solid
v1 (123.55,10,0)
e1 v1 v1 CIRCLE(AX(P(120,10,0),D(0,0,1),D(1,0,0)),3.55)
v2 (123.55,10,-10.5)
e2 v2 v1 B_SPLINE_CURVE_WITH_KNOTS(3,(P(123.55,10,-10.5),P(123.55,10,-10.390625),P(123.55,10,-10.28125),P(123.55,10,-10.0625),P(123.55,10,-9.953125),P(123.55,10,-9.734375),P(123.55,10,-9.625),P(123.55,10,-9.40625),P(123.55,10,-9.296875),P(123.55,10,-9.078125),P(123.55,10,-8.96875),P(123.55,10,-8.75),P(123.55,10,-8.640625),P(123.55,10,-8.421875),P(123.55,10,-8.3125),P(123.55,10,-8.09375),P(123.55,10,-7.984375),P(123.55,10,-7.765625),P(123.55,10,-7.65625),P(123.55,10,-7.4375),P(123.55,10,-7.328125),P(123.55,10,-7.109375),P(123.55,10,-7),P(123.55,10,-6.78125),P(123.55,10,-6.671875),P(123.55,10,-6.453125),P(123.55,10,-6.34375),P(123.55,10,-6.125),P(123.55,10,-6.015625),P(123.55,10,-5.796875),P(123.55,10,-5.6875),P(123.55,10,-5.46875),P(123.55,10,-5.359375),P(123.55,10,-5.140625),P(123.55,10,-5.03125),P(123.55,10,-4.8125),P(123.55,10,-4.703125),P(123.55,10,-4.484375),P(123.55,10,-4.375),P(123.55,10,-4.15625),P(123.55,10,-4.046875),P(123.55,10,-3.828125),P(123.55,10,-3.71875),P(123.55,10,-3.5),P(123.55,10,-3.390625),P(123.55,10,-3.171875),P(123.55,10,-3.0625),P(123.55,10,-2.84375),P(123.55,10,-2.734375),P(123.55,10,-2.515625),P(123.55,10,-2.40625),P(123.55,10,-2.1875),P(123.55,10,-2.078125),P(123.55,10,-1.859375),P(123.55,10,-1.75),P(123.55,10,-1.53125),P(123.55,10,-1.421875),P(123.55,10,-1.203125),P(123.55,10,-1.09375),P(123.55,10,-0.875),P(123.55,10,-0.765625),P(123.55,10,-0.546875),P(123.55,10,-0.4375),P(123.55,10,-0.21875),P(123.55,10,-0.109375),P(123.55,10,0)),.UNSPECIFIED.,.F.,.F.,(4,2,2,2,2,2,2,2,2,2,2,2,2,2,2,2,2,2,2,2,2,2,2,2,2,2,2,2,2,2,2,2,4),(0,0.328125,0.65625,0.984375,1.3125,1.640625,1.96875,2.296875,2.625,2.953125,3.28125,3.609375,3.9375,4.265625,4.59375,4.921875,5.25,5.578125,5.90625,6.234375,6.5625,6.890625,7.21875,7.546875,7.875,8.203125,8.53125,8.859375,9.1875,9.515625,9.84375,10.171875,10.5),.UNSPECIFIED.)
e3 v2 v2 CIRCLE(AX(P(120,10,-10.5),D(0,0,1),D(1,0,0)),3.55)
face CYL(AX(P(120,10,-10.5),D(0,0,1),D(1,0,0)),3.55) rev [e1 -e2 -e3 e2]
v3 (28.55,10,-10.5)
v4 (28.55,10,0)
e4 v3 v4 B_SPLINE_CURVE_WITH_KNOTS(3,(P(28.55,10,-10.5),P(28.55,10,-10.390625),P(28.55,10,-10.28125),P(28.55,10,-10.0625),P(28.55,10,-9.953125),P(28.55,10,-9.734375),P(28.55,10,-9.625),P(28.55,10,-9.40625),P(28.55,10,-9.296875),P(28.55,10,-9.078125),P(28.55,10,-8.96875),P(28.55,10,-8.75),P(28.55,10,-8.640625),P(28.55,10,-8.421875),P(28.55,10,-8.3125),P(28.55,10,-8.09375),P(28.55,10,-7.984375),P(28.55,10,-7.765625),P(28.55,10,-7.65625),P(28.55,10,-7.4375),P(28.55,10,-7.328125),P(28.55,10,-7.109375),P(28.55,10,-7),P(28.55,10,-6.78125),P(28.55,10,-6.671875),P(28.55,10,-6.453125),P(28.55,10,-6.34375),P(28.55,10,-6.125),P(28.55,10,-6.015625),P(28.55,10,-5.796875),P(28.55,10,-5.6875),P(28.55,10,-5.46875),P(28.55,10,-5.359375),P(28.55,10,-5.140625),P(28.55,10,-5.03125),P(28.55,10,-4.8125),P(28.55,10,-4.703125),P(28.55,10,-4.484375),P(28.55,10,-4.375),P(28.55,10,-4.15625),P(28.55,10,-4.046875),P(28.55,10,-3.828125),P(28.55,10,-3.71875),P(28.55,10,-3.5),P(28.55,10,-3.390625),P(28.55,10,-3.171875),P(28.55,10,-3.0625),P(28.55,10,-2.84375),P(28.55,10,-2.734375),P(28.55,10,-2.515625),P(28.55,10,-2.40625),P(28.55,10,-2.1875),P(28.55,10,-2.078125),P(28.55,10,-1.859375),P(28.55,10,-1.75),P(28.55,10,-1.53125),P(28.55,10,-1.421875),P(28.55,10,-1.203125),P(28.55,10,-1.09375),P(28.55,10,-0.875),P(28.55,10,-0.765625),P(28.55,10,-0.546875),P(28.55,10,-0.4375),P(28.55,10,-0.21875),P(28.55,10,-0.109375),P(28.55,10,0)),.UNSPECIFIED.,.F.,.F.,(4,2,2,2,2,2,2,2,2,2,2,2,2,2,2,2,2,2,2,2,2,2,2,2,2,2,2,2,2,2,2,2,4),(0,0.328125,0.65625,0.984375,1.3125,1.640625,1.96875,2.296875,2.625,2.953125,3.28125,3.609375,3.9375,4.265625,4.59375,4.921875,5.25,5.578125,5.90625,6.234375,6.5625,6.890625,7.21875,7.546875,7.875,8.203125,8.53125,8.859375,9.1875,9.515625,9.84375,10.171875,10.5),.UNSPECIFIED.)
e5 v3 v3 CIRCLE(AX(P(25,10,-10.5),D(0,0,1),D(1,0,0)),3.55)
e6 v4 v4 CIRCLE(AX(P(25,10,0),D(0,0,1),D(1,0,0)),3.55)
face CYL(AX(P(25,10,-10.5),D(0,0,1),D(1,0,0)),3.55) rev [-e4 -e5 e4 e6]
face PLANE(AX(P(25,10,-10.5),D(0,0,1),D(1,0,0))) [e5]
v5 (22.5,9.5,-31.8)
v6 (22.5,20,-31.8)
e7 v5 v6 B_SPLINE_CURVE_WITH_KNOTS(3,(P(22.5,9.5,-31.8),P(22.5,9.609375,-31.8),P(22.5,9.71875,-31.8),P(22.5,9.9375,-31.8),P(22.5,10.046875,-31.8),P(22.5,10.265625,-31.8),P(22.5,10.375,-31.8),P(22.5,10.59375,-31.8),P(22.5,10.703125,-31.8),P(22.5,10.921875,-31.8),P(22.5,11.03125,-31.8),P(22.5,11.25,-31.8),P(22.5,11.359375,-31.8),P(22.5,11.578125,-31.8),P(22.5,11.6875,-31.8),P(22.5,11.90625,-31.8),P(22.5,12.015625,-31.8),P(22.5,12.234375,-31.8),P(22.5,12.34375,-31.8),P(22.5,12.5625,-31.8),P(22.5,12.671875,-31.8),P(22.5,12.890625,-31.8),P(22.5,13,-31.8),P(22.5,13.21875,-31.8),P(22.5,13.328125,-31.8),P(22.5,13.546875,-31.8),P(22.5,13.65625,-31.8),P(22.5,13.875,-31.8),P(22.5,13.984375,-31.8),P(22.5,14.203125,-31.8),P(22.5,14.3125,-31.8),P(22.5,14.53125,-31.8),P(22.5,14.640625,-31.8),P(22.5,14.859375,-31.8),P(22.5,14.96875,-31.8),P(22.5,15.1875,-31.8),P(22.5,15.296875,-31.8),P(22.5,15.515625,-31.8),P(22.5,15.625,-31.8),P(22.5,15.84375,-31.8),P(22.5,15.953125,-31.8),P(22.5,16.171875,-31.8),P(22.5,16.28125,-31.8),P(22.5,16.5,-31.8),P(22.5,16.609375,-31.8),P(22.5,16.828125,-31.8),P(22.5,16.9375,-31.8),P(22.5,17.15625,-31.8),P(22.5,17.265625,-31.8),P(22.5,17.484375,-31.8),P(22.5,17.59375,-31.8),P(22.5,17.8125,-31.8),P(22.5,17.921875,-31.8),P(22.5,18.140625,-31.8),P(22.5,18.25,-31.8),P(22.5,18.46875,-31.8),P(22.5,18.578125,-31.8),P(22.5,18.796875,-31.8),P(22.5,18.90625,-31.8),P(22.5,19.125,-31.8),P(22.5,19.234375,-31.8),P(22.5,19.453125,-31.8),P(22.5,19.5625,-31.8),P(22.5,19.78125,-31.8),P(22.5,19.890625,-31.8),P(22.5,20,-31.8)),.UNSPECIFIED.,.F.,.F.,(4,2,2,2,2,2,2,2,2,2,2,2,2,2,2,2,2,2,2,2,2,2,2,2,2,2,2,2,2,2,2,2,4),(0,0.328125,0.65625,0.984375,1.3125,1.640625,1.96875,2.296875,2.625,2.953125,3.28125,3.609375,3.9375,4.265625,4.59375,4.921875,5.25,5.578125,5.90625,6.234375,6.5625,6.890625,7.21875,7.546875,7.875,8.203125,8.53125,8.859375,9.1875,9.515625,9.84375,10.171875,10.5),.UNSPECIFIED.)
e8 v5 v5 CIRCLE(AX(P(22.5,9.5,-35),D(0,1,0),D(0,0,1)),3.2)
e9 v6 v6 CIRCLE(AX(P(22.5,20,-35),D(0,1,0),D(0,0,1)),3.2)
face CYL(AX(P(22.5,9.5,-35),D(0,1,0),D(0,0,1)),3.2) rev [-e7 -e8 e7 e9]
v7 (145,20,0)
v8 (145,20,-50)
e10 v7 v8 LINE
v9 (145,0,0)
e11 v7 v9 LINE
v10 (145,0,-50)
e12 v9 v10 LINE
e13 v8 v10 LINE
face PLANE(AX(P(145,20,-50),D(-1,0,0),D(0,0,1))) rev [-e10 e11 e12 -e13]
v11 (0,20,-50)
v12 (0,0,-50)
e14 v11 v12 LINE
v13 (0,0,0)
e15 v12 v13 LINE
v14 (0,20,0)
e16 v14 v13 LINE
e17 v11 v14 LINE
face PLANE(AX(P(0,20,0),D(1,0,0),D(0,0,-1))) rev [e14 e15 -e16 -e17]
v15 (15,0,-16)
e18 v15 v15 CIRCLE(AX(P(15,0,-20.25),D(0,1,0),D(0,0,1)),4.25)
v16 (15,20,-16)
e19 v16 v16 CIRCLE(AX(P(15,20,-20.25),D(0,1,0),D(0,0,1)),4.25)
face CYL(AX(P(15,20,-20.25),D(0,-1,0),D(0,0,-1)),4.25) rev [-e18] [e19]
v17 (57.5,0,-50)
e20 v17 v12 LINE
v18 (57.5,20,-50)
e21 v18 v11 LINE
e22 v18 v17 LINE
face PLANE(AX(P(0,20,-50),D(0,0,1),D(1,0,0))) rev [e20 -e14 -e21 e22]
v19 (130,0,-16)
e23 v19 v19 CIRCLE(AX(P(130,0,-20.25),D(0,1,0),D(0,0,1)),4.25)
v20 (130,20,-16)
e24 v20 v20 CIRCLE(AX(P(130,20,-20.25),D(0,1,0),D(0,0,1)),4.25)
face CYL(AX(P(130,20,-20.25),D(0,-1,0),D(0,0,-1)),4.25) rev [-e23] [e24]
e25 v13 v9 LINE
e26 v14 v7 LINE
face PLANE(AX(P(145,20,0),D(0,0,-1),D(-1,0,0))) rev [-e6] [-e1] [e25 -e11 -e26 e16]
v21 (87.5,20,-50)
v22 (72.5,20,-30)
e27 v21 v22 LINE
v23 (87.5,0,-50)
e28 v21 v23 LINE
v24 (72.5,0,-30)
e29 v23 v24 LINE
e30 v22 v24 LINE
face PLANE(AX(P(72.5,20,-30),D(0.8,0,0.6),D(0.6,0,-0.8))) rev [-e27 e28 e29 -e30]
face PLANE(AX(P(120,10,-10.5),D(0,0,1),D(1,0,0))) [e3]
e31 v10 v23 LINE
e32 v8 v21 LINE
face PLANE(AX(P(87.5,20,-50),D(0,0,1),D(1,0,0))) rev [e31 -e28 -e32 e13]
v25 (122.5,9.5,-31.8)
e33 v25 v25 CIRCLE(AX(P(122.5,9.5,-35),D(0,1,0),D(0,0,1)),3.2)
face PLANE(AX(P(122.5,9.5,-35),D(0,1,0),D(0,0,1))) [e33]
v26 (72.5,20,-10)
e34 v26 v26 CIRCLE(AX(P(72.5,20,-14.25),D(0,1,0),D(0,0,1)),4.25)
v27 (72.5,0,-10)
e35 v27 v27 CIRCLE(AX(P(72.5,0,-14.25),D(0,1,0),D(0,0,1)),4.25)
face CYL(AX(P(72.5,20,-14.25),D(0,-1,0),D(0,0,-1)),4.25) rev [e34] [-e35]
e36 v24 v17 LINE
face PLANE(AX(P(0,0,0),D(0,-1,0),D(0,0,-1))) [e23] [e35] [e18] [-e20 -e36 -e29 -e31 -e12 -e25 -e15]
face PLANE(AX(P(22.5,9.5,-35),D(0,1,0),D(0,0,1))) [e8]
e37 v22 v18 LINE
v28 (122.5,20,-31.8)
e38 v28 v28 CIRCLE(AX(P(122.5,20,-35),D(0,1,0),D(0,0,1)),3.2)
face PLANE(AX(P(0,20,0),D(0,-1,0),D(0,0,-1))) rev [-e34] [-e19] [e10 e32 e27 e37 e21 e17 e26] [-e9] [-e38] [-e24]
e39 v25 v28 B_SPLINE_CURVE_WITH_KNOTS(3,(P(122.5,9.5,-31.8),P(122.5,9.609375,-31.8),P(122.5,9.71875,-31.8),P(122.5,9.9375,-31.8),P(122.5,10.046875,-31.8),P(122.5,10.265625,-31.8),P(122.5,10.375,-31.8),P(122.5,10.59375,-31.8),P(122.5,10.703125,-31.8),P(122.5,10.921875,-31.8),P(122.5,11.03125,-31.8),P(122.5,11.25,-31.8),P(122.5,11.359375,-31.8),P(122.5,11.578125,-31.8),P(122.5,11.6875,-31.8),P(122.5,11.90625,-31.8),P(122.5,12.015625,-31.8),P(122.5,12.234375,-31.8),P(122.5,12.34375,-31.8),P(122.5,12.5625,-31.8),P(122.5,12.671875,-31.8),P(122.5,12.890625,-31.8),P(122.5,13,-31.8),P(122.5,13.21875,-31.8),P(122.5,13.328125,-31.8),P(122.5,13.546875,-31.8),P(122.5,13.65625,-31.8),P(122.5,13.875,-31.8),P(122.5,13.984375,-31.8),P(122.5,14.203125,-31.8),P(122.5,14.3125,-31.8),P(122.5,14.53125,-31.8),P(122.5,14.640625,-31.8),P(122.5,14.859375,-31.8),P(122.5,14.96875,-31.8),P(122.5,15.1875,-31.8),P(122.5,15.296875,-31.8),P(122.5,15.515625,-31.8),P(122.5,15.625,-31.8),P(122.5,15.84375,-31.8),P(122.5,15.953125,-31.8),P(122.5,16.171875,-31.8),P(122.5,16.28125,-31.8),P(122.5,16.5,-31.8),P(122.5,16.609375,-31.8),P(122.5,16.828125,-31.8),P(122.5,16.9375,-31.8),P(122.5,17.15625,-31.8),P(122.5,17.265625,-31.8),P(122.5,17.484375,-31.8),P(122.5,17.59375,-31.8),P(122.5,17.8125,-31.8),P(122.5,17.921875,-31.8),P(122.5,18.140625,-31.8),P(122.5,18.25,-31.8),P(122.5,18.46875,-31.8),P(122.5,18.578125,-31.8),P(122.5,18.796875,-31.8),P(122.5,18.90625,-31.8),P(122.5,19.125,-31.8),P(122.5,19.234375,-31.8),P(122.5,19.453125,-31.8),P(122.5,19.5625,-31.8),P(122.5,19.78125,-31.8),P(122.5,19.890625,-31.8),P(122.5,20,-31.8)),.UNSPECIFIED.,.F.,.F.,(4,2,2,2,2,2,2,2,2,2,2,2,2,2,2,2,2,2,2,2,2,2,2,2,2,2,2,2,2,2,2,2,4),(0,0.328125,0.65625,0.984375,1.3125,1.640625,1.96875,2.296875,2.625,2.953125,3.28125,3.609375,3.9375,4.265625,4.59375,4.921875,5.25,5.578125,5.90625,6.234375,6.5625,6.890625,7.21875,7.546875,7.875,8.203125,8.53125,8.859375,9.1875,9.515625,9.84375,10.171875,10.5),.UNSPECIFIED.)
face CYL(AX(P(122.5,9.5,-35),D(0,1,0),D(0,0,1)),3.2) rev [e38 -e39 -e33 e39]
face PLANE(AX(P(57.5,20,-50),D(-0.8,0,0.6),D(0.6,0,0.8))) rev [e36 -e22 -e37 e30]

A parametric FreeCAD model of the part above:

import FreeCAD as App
import Part
import Sketcher

doc = App.newDocument("Part")
body = doc.addObject("PartDesign::Body", "Body")

# Sketch on XZ plane
sketch1 = body.newObject("Sketcher::SketchObject", "Sketch")
sketch1.AttachmentSupport = (doc.getObject("XZ_Plane"), [""])
sketch1.MapMode = "FlatFace"
sketch1.addGeometry([
    Part.LineSegment(App.Vector(0, -50, 0), App.Vector(0, 0, 0)),  # 0
    Part.LineSegment(App.Vector(0, 0, 0), App.Vector(145, 0, 0)),  # 1
    Part.LineSegment(App.Vector(145, 0, 0), App.Vector(145, -50, 0)),  # 2
    Part.LineSegment(App.Vector(145, -50, 0), App.Vector(87.5, -50, 0)),  # 3
    Part.LineSegment(App.Vector(87.5, -50, 0), App.Vector(72.5, -30, 0)),  # 4
    Part.LineSegment(App.Vector(72.5, -30, 0), App.Vector(57.5, -50, 0)),  # 5
    Part.LineSegment(App.Vector(57.5, -50, 0), App.Vector(0, -50, 0)),  # 6
    Part.Circle(App.Vector(72.5, -14.2, 0), App.Vector(0, 0, 1), 4.2),  # 7
    Part.Circle(App.Vector(130, -20.2, 0), App.Vector(0, 0, 1), 4.2),  # 8
    Part.Circle(App.Vector(15, -20.2, 0), App.Vector(0, 0, 1), 4.2),  # 9
], False)
sketch1.addConstraint([
    Sketcher.Constraint("Coincident", 0, 2, 1, 1),
    Sketcher.Constraint("Coincident", 1, 2, 2, 1),
    Sketcher.Constraint("Coincident", 2, 2, 3, 1),
    Sketcher.Constraint("Coincident", 3, 2, 4, 1),
    Sketcher.Constraint("Coincident", 4, 2, 5, 1),
    Sketcher.Constraint("Coincident", 5, 2, 6, 1),
    Sketcher.Constraint("Coincident", 6, 2, 0, 1),
    Sketcher.Constraint("Vertical", 0),
    Sketcher.Constraint("Horizontal", 1),
    Sketcher.Constraint("Vertical", 2),
    Sketcher.Constraint("Horizontal", 3),
    Sketcher.Constraint("Horizontal", 6),
    Sketcher.Constraint("Coincident", 0, 2, -1, 1),
    Sketcher.Constraint("Equal", 7, 8),
    Sketcher.Constraint("Equal", 8, 9),
    Sketcher.Constraint("Horizontal", 8, 3, 9, 3),
    Sketcher.Constraint("Horizontal", 3, 2, 5, 2),
    Sketcher.Constraint("Vertical", 7, 3, 4, 2),
    Sketcher.Constraint("Equal", 3, 6),
    Sketcher.Constraint("Equal", 4, 5),
    Sketcher.Constraint("Diameter", 7, 8.5),
    Sketcher.Constraint("DistanceX", 1, 1, 1, 2, 145.0),
    Sketcher.Constraint("DistanceY", 0, 1, 0, 2, 50.0),
    Sketcher.Constraint("Distance", 4, 25.0),
    Sketcher.Constraint("DistanceX", 3, 2, 3, 1, 57.5),
    Sketcher.Constraint("DistanceX", -1, 1, 8, 3, 130.0),
    Sketcher.Constraint("DistanceX", -1, 1, 9, 3, 15.0),
    Sketcher.Constraint("DistanceY", 8, 3, 7, 3, 6.0),
    Sketcher.Constraint("DistanceY", 7, 3, -1, 1, 14.25),
])
pad1 = body.newObject("PartDesign::Pad", "Pad")
pad1.Profile = sketch1
pad1.Length = 20
pad1.Reversed = True

# Sketch on XY plane
sketch2 = body.newObject("Sketcher::SketchObject", "Sketch001")
sketch2.AttachmentSupport = (doc.getObject("XY_Plane"), [""])
sketch2.MapMode = "FlatFace"
sketch2.addGeometry([
    Part.Circle(App.Vector(25, 10, 0), App.Vector(0, 0, 1), 3.5),
    Part.Circle(App.Vector(120, 10, 0), App.Vector(0, 0, 1), 3.5),
], False)
sketch2.addConstraint([
    Sketcher.Constraint("Equal", 0, 1),
    Sketcher.Constraint("Horizontal", 0, 3, 1, 3),
    Sketcher.Constraint("Diameter", 0, 7.1),
    Sketcher.Constraint("DistanceX", -1, 1, 0, 3, 25.0),
    Sketcher.Constraint("DistanceY", -1, 1, 0, 3, 10.0),
    Sketcher.Constraint("DistanceX", -1, 1, 1, 3, 120.0),
])
pocket1 = body.newObject("PartDesign::Pocket", "Pocket")
pocket1.Profile = sketch2
pocket1.Length = 10.5

# Sketch on XZ plane
sketch3 = body.newObject("Sketcher::SketchObject", "Sketch002")
sketch3.AttachmentSupport = (doc.getObject("XZ_Plane"), [""])
sketch3.MapMode = "FlatFace"
sketch3.AttachmentOffset = App.Placement(App.Vector(0, 0, -20), App.Rotation())
sketch3.addGeometry([
    Part.Circle(App.Vector(22.5, -35, 0), App.Vector(0, 0, 1), 3.2),
    Part.Circle(App.Vector(122.5, -35, 0), App.Vector(0, 0, 1), 3.2),
], False)
sketch3.addConstraint([
    Sketcher.Constraint("Equal", 0, 1),
    Sketcher.Constraint("Horizontal", 0, 3, 1, 3),
    Sketcher.Constraint("Diameter", 0, 6.4),
    Sketcher.Constraint("DistanceY", 0, 3, -1, 1, 35.0),
    Sketcher.Constraint("DistanceX", 0, 3, 1, 3, 100.0),
    Sketcher.Constraint("DistanceX", -1, 1, 0, 3, 22.5),
])
pocket2 = body.newObject("PartDesign::Pocket", "Pocket001")
pocket2.Profile = sketch3
pocket2.Length = 10.5
pocket2.Reversed = True

doc.recompute()
